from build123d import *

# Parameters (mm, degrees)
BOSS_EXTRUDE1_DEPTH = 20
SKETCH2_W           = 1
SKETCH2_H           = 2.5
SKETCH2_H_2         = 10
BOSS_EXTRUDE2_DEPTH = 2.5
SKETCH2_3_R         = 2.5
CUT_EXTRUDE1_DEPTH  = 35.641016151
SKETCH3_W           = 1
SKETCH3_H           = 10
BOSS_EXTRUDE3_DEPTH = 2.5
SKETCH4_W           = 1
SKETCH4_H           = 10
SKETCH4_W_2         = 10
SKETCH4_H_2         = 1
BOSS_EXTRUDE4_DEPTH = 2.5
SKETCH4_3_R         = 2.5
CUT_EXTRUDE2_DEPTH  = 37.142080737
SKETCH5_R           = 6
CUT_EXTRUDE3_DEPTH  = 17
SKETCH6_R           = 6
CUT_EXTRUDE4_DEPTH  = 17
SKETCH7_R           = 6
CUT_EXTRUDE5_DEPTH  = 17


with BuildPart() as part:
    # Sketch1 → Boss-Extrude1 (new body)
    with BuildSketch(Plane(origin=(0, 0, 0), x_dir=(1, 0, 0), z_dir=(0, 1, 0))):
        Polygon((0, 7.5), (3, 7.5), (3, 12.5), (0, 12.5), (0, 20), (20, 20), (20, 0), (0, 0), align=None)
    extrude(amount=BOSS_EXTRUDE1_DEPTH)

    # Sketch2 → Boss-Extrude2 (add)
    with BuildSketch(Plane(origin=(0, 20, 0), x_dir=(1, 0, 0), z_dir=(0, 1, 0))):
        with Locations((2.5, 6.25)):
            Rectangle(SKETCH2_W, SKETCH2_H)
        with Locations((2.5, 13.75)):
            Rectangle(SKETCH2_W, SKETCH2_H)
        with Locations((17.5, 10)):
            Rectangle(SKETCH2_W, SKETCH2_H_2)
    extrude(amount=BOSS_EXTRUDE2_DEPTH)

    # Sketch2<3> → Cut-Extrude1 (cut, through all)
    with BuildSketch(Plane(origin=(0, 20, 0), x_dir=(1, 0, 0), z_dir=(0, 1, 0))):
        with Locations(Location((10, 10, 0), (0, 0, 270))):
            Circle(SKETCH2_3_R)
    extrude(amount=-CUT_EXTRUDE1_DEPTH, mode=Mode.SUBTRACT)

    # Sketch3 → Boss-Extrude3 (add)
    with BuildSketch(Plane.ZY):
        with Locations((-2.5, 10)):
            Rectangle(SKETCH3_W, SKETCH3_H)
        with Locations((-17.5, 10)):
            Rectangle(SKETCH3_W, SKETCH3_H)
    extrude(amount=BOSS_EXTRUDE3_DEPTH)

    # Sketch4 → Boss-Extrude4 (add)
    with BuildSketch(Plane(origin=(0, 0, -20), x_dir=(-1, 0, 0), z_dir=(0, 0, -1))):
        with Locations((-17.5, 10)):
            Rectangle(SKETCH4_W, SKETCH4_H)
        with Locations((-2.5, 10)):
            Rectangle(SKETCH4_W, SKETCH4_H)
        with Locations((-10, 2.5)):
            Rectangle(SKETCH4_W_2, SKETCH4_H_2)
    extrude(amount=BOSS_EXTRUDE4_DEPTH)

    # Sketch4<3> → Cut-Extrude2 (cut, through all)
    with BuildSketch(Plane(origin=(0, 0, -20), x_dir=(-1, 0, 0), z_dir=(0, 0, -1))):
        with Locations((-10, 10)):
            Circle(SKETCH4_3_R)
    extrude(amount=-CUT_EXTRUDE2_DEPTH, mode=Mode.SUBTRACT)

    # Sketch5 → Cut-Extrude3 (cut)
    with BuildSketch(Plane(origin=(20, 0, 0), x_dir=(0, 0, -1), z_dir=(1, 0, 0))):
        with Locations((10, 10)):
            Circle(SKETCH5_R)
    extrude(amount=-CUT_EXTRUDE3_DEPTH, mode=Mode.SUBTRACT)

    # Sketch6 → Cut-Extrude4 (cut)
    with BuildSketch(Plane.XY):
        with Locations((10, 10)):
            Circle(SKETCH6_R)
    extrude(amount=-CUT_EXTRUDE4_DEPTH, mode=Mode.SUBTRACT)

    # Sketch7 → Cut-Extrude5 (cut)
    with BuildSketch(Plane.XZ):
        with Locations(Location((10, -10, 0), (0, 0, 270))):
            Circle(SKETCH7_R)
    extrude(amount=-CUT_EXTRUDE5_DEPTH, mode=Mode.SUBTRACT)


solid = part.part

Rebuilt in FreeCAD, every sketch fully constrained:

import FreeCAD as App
import Part
import Sketcher
Q = App.Units.Quantity


def add_polygon(sketch, points):
    """Adds a closed chain of lines whose ends are joined by coincident constraints."""
    first, n = sketch.GeometryCount, len(points)
    for a, b in zip(points, points[1:] + points[:1]):
        sketch.addGeometry(Part.LineSegment(App.Vector(*a, 0), App.Vector(*b, 0)), False)
    for i in range(n):
        sketch.addConstraint(Sketcher.Constraint("Coincident", first + i, 2, first + (i + 1) % n, 1))

doc = App.newDocument("Part")
body = doc.addObject("PartDesign::Body", "Body")

# Sketch on XZ plane
sketch1 = body.newObject("Sketcher::SketchObject", "Sketch")
sketch1.AttachmentSupport = (doc.getObject("XZ_Plane"), [""])
sketch1.MapMode = "FlatFace"
add_polygon(sketch1, [(3, -7.5), (0, -7.5), (0, 0), (20, 0), (20, -20), (0, -20), (0, -12.5), (3, -12.5)])  # lines 0-7
sketch1.addConstraint(Sketcher.Constraint("Horizontal", 0))
sketch1.addConstraint(Sketcher.Constraint("Vertical", 1))
sketch1.addConstraint(Sketcher.Constraint("Horizontal", 2))
sketch1.addConstraint(Sketcher.Constraint("Vertical", 3))
sketch1.addConstraint(Sketcher.Constraint("Horizontal", 4))
sketch1.addConstraint(Sketcher.Constraint("Vertical", 5))
sketch1.addConstraint(Sketcher.Constraint("Horizontal", 6))
sketch1.addConstraint(Sketcher.Constraint("Vertical", 7))
sketch1.addConstraint(Sketcher.Constraint("Coincident", 1, 2, -1, 1))
sketch1.addConstraint(Sketcher.Constraint("PointOnObject", 4, 2, -2))
sketch1.addConstraint(Sketcher.Constraint("Equal", 4, 3))
sketch1.addConstraint(Sketcher.Constraint("Equal", 1, 5))
sketch1.addConstraint(Sketcher.Constraint("DistanceX", 0, 2, 0, 1, Q("3 mm")))
sketch1.addConstraint(Sketcher.Constraint("DistanceX", 2, 1, 2, 2, Q("20 mm")))
sketch1.addConstraint(Sketcher.Constraint("DistanceY", 7, 1, 7, 2, Q("5 mm")))
pad1 = body.newObject("PartDesign::Pad", "Pad")
pad1.Profile = sketch1
pad1.Length = 20
pad1.Reversed = True

# Sketch on XZ plane
sketch2 = body.newObject("Sketcher::SketchObject", "Sketch001")
sketch2.AttachmentSupport = (doc.getObject("XZ_Plane"), [""])
sketch2.MapMode = "FlatFace"
sketch2.AttachmentOffset = App.Placement(App.Vector(0, 0, -20), App.Rotation())
add_polygon(sketch2, [(2, -7.5), (2, -5), (3, -5), (3, -7.5)])  # lines 0-3
add_polygon(sketch2, [(2, -15), (2, -12.5), (3, -12.5), (3, -15)])  # lines 4-7
add_polygon(sketch2, [(17, -15), (17, -5), (18, -5), (18, -15)])  # lines 8-11
sketch2.addConstraint(Sketcher.Constraint("Vertical", 0))
sketch2.addConstraint(Sketcher.Constraint("Horizontal", 1))
sketch2.addConstraint(Sketcher.Constraint("Vertical", 2))
sketch2.addConstraint(Sketcher.Constraint("Horizontal", 3))
sketch2.addConstraint(Sketcher.Constraint("Vertical", 4))
sketch2.addConstraint(Sketcher.Constraint("Horizontal", 5))
sketch2.addConstraint(Sketcher.Constraint("Vertical", 6))
sketch2.addConstraint(Sketcher.Constraint("Horizontal", 7))
sketch2.addConstraint(Sketcher.Constraint("Vertical", 8))
sketch2.addConstraint(Sketcher.Constraint("Horizontal", 9))
sketch2.addConstraint(Sketcher.Constraint("Vertical", 10))
sketch2.addConstraint(Sketcher.Constraint("Horizontal", 11))
sketch2.addConstraint(Sketcher.Constraint("Horizontal", 1, 2, 8, 2))
sketch2.addConstraint(Sketcher.Constraint("Horizontal", 7, 2, 10, 2))
sketch2.addConstraint(Sketcher.Constraint("Vertical", 3, 2, 4, 2))
sketch2.addConstraint(Sketcher.Constraint("Vertical", 2, 2, 5, 2))
sketch2.addConstraint(Sketcher.Constraint("Equal", 7, 9))
sketch2.addConstraint(Sketcher.Constraint("Equal", 2, 4))
sketch2.addConstraint(Sketcher.Constraint("DistanceX", 1, 1, 1, 2, Q("1 mm")))
sketch2.addConstraint(Sketcher.Constraint("DistanceY", 8, 1, 8, 2, Q("10 mm")))
sketch2.addConstraint(Sketcher.Constraint("DistanceY", 0, 1, 0, 2, Q("2.5 mm")))
sketch2.addConstraint(Sketcher.Constraint("DistanceX", -1, 1, 0, 2, Q("2 mm")))
sketch2.addConstraint(Sketcher.Constraint("DistanceY", 0, 2, -1, 1, Q("5 mm")))
sketch2.addConstraint(Sketcher.Constraint("DistanceX", -1, 1, 8, 2, Q("17 mm")))
pad2 = body.newObject("PartDesign::Pad", "Pad001")
pad2.Profile = sketch2
pad2.Length = 2.5
pad2.Reversed = True

# Sketch on XZ plane
sketch3 = body.newObject("Sketcher::SketchObject", "Sketch002")
sketch3.AttachmentSupport = (doc.getObject("XZ_Plane"), [""])
sketch3.MapMode = "FlatFace"
sketch3.AttachmentOffset = App.Placement(App.Vector(0, 0, -20), App.Rotation())
sketch3.addGeometry(Part.Circle(App.Vector(10, -10, 0), App.Vector(0, 0, 1), 2.5), False)
sketch3.addConstraint(Sketcher.Constraint("Diameter", 0, Q("5 mm")))
sketch3.addConstraint(Sketcher.Constraint("DistanceX", -1, 1, 0, 3, Q("10 mm")))
sketch3.addConstraint(Sketcher.Constraint("DistanceY", 0, 3, -1, 1, Q("10 mm")))
pocket1 = body.newObject("PartDesign::Pocket", "Pocket")
pocket1.Profile = sketch3
pocket1.Type = "ThroughAll"
pocket1.Reversed = True

# Sketch on YZ plane
sketch4 = body.newObject("Sketcher::SketchObject", "Sketch003")
sketch4.AttachmentSupport = (doc.getObject("YZ_Plane"), [""])
sketch4.MapMode = "FlatFace"
add_polygon(sketch4, [(15, -3), (5, -3), (5, -2), (15, -2)])  # lines 0-3
add_polygon(sketch4, [(15, -18), (5, -18), (5, -17), (15, -17)])  # lines 4-7
sketch4.addConstraint(Sketcher.Constraint("Horizontal", 0))
sketch4.addConstraint(Sketcher.Constraint("Vertical", 1))
sketch4.addConstraint(Sketcher.Constraint("Horizontal", 2))
sketch4.addConstraint(Sketcher.Constraint("Vertical", 3))
sketch4.addConstraint(Sketcher.Constraint("Horizontal", 4))
sketch4.addConstraint(Sketcher.Constraint("Vertical", 5))
sketch4.addConstraint(Sketcher.Constraint("Horizontal", 6))
sketch4.addConstraint(Sketcher.Constraint("Vertical", 7))
sketch4.addConstraint(Sketcher.Constraint("Vertical", 1, 2, 4, 2))
sketch4.addConstraint(Sketcher.Constraint("Vertical", 3, 2, 6, 2))
sketch4.addConstraint(Sketcher.Constraint("Equal", 3, 5))
sketch4.addConstraint(Sketcher.Constraint("DistanceX", 0, 2, 0, 1, Q("10 mm")))
sketch4.addConstraint(Sketcher.Constraint("DistanceY", 1, 1, 1, 2, Q("1 mm")))
sketch4.addConstraint(Sketcher.Constraint("DistanceX", -1, 1, 0, 2, Q("5 mm")))
sketch4.addConstraint(Sketcher.Constraint("DistanceY", 0, 2, -1, 1, Q("3 mm")))
sketch4.addConstraint(Sketcher.Constraint("DistanceY", 4, 2, -1, 1, Q("18 mm")))
pad3 = body.newObject("PartDesign::Pad", "Pad002")
pad3.Profile = sketch4
pad3.Length = 2.5
pad3.Reversed = True

# Sketch on XY plane
sketch5 = body.newObject("Sketcher::SketchObject", "Sketch004")
sketch5.AttachmentSupport = (doc.getObject("XY_Plane"), [""])
sketch5.MapMode = "FlatFace"
sketch5.AttachmentOffset = App.Placement(App.Vector(0, 0, -20), App.Rotation())
add_polygon(sketch5, [(18, 15), (18, 5), (17, 5), (17, 15)])  # lines 0-3
add_polygon(sketch5, [(3, 15), (3, 5), (2, 5), (2, 15)])  # lines 4-7
add_polygon(sketch5, [(15, 3), (15, 2), (5, 2), (5, 3)])  # lines 8-11
sketch5.addConstraint(Sketcher.Constraint("Vertical", 0))
sketch5.addConstraint(Sketcher.Constraint("Horizontal", 1))
sketch5.addConstraint(Sketcher.Constraint("Vertical", 2))
sketch5.addConstraint(Sketcher.Constraint("Horizontal", 3))
sketch5.addConstraint(Sketcher.Constraint("Vertical", 4))
sketch5.addConstraint(Sketcher.Constraint("Horizontal", 5))
sketch5.addConstraint(Sketcher.Constraint("Vertical", 6))
sketch5.addConstraint(Sketcher.Constraint("Horizontal", 7))
sketch5.addConstraint(Sketcher.Constraint("Vertical", 8))
sketch5.addConstraint(Sketcher.Constraint("Horizontal", 9))
sketch5.addConstraint(Sketcher.Constraint("Vertical", 10))
sketch5.addConstraint(Sketcher.Constraint("Horizontal", 11))
sketch5.addConstraint(Sketcher.Constraint("Horizontal", 1, 2, 4, 2))
sketch5.addConstraint(Sketcher.Constraint("Horizontal", 3, 2, 6, 2))
sketch5.addConstraint(Sketcher.Constraint("Equal", 3, 5))
sketch5.addConstraint(Sketcher.Constraint("Equal", 11, 0))
sketch5.addConstraint(Sketcher.Constraint("Equal", 7, 8))
sketch5.addConstraint(Sketcher.Constraint("DistanceX", 1, 2, 1, 1, Q("1 mm")))
sketch5.addConstraint(Sketcher.Constraint("DistanceX", 9, 2, 9, 1, Q("10 mm")))
sketch5.addConstraint(Sketcher.Constraint("DistanceX", -1, 1, 0, 2, Q("18 mm")))
sketch5.addConstraint(Sketcher.Constraint("DistanceY", -1, 1, 0, 2, Q("5 mm")))
sketch5.addConstraint(Sketcher.Constraint("DistanceX", -1, 1, 4, 2, Q("3 mm")))
sketch5.addConstraint(Sketcher.Constraint("DistanceX", -1, 1, 8, 2, Q("15 mm")))
sketch5.addConstraint(Sketcher.Constraint("DistanceY", -1, 1, 8, 2, Q("2 mm")))
pad4 = body.newObject("PartDesign::Pad", "Pad003")
pad4.Profile = sketch5
pad4.Length = 2.5
pad4.Reversed = True

# Sketch on XY plane
sketch6 = body.newObject("Sketcher::SketchObject", "Sketch005")
sketch6.AttachmentSupport = (doc.getObject("XY_Plane"), [""])
sketch6.MapMode = "FlatFace"
sketch6.AttachmentOffset = App.Placement(App.Vector(0, 0, -20), App.Rotation())
sketch6.addGeometry(Part.Circle(App.Vector(10, 10, 0), App.Vector(0, 0, 1), 2.5), False)
sketch6.addConstraint(Sketcher.Constraint("Diameter", 0, Q("5 mm")))
sketch6.addConstraint(Sketcher.Constraint("DistanceX", -1, 1, 0, 3, Q("10 mm")))
sketch6.addConstraint(Sketcher.Constraint("DistanceY", -1, 1, 0, 3, Q("10 mm")))
pocket2 = body.newObject("PartDesign::Pocket", "Pocket001")
pocket2.Profile = sketch6
pocket2.Type = "ThroughAll"
pocket2.Reversed = True

# Sketch on YZ plane
sketch7 = body.newObject("Sketcher::SketchObject", "Sketch006")
sketch7.AttachmentSupport = (doc.getObject("YZ_Plane"), [""])
sketch7.MapMode = "FlatFace"
sketch7.AttachmentOffset = App.Placement(App.Vector(0, 0, 20), App.Rotation())
sketch7.addGeometry(Part.Circle(App.Vector(10, -10, 0), App.Vector(0, 0, 1), 6), False)
sketch7.addConstraint(Sketcher.Constraint("Diameter", 0, Q("12 mm")))
sketch7.addConstraint(Sketcher.Constraint("DistanceX", -1, 1, 0, 3, Q("10 mm")))
sketch7.addConstraint(Sketcher.Constraint("DistanceY", 0, 3, -1, 1, Q("10 mm")))
pocket3 = body.newObject("PartDesign::Pocket", "Pocket002")
pocket3.Profile = sketch7
pocket3.Length = 17

# Sketch on XY plane
sketch8 = body.newObject("Sketcher::SketchObject", "Sketch007")
sketch8.AttachmentSupport = (doc.getObject("XY_Plane"), [""])
sketch8.MapMode = "FlatFace"
sketch8.addGeometry(Part.Circle(App.Vector(10, 10, 0), App.Vector(0, 0, 1), 6), False)
sketch8.addConstraint(Sketcher.Constraint("Diameter", 0, Q("12 mm")))
sketch8.addConstraint(Sketcher.Constraint("DistanceX", -1, 1, 0, 3, Q("10 mm")))
sketch8.addConstraint(Sketcher.Constraint("DistanceY", -1, 1, 0, 3, Q("10 mm")))
pocket4 = body.newObject("PartDesign::Pocket", "Pocket003")
pocket4.Profile = sketch8
pocket4.Length = 17

# Sketch on XZ plane
sketch9 = body.newObject("Sketcher::SketchObject", "Sketch008")
sketch9.AttachmentSupport = (doc.getObject("XZ_Plane"), [""])
sketch9.MapMode = "FlatFace"
sketch9.addGeometry(Part.Circle(App.Vector(10, -10, 0), App.Vector(0, 0, 1), 6), False)
sketch9.addConstraint(Sketcher.Constraint("Diameter", 0, Q("12 mm")))
sketch9.addConstraint(Sketcher.Constraint("DistanceX", -1, 1, 0, 3, Q("10 mm")))
sketch9.addConstraint(Sketcher.Constraint("DistanceY", 0, 3, -1, 1, Q("10 mm")))
pocket5 = body.newObject("PartDesign::Pocket", "Pocket004")
pocket5.Profile = sketch9
pocket5.Length = 17

doc.recompute()
